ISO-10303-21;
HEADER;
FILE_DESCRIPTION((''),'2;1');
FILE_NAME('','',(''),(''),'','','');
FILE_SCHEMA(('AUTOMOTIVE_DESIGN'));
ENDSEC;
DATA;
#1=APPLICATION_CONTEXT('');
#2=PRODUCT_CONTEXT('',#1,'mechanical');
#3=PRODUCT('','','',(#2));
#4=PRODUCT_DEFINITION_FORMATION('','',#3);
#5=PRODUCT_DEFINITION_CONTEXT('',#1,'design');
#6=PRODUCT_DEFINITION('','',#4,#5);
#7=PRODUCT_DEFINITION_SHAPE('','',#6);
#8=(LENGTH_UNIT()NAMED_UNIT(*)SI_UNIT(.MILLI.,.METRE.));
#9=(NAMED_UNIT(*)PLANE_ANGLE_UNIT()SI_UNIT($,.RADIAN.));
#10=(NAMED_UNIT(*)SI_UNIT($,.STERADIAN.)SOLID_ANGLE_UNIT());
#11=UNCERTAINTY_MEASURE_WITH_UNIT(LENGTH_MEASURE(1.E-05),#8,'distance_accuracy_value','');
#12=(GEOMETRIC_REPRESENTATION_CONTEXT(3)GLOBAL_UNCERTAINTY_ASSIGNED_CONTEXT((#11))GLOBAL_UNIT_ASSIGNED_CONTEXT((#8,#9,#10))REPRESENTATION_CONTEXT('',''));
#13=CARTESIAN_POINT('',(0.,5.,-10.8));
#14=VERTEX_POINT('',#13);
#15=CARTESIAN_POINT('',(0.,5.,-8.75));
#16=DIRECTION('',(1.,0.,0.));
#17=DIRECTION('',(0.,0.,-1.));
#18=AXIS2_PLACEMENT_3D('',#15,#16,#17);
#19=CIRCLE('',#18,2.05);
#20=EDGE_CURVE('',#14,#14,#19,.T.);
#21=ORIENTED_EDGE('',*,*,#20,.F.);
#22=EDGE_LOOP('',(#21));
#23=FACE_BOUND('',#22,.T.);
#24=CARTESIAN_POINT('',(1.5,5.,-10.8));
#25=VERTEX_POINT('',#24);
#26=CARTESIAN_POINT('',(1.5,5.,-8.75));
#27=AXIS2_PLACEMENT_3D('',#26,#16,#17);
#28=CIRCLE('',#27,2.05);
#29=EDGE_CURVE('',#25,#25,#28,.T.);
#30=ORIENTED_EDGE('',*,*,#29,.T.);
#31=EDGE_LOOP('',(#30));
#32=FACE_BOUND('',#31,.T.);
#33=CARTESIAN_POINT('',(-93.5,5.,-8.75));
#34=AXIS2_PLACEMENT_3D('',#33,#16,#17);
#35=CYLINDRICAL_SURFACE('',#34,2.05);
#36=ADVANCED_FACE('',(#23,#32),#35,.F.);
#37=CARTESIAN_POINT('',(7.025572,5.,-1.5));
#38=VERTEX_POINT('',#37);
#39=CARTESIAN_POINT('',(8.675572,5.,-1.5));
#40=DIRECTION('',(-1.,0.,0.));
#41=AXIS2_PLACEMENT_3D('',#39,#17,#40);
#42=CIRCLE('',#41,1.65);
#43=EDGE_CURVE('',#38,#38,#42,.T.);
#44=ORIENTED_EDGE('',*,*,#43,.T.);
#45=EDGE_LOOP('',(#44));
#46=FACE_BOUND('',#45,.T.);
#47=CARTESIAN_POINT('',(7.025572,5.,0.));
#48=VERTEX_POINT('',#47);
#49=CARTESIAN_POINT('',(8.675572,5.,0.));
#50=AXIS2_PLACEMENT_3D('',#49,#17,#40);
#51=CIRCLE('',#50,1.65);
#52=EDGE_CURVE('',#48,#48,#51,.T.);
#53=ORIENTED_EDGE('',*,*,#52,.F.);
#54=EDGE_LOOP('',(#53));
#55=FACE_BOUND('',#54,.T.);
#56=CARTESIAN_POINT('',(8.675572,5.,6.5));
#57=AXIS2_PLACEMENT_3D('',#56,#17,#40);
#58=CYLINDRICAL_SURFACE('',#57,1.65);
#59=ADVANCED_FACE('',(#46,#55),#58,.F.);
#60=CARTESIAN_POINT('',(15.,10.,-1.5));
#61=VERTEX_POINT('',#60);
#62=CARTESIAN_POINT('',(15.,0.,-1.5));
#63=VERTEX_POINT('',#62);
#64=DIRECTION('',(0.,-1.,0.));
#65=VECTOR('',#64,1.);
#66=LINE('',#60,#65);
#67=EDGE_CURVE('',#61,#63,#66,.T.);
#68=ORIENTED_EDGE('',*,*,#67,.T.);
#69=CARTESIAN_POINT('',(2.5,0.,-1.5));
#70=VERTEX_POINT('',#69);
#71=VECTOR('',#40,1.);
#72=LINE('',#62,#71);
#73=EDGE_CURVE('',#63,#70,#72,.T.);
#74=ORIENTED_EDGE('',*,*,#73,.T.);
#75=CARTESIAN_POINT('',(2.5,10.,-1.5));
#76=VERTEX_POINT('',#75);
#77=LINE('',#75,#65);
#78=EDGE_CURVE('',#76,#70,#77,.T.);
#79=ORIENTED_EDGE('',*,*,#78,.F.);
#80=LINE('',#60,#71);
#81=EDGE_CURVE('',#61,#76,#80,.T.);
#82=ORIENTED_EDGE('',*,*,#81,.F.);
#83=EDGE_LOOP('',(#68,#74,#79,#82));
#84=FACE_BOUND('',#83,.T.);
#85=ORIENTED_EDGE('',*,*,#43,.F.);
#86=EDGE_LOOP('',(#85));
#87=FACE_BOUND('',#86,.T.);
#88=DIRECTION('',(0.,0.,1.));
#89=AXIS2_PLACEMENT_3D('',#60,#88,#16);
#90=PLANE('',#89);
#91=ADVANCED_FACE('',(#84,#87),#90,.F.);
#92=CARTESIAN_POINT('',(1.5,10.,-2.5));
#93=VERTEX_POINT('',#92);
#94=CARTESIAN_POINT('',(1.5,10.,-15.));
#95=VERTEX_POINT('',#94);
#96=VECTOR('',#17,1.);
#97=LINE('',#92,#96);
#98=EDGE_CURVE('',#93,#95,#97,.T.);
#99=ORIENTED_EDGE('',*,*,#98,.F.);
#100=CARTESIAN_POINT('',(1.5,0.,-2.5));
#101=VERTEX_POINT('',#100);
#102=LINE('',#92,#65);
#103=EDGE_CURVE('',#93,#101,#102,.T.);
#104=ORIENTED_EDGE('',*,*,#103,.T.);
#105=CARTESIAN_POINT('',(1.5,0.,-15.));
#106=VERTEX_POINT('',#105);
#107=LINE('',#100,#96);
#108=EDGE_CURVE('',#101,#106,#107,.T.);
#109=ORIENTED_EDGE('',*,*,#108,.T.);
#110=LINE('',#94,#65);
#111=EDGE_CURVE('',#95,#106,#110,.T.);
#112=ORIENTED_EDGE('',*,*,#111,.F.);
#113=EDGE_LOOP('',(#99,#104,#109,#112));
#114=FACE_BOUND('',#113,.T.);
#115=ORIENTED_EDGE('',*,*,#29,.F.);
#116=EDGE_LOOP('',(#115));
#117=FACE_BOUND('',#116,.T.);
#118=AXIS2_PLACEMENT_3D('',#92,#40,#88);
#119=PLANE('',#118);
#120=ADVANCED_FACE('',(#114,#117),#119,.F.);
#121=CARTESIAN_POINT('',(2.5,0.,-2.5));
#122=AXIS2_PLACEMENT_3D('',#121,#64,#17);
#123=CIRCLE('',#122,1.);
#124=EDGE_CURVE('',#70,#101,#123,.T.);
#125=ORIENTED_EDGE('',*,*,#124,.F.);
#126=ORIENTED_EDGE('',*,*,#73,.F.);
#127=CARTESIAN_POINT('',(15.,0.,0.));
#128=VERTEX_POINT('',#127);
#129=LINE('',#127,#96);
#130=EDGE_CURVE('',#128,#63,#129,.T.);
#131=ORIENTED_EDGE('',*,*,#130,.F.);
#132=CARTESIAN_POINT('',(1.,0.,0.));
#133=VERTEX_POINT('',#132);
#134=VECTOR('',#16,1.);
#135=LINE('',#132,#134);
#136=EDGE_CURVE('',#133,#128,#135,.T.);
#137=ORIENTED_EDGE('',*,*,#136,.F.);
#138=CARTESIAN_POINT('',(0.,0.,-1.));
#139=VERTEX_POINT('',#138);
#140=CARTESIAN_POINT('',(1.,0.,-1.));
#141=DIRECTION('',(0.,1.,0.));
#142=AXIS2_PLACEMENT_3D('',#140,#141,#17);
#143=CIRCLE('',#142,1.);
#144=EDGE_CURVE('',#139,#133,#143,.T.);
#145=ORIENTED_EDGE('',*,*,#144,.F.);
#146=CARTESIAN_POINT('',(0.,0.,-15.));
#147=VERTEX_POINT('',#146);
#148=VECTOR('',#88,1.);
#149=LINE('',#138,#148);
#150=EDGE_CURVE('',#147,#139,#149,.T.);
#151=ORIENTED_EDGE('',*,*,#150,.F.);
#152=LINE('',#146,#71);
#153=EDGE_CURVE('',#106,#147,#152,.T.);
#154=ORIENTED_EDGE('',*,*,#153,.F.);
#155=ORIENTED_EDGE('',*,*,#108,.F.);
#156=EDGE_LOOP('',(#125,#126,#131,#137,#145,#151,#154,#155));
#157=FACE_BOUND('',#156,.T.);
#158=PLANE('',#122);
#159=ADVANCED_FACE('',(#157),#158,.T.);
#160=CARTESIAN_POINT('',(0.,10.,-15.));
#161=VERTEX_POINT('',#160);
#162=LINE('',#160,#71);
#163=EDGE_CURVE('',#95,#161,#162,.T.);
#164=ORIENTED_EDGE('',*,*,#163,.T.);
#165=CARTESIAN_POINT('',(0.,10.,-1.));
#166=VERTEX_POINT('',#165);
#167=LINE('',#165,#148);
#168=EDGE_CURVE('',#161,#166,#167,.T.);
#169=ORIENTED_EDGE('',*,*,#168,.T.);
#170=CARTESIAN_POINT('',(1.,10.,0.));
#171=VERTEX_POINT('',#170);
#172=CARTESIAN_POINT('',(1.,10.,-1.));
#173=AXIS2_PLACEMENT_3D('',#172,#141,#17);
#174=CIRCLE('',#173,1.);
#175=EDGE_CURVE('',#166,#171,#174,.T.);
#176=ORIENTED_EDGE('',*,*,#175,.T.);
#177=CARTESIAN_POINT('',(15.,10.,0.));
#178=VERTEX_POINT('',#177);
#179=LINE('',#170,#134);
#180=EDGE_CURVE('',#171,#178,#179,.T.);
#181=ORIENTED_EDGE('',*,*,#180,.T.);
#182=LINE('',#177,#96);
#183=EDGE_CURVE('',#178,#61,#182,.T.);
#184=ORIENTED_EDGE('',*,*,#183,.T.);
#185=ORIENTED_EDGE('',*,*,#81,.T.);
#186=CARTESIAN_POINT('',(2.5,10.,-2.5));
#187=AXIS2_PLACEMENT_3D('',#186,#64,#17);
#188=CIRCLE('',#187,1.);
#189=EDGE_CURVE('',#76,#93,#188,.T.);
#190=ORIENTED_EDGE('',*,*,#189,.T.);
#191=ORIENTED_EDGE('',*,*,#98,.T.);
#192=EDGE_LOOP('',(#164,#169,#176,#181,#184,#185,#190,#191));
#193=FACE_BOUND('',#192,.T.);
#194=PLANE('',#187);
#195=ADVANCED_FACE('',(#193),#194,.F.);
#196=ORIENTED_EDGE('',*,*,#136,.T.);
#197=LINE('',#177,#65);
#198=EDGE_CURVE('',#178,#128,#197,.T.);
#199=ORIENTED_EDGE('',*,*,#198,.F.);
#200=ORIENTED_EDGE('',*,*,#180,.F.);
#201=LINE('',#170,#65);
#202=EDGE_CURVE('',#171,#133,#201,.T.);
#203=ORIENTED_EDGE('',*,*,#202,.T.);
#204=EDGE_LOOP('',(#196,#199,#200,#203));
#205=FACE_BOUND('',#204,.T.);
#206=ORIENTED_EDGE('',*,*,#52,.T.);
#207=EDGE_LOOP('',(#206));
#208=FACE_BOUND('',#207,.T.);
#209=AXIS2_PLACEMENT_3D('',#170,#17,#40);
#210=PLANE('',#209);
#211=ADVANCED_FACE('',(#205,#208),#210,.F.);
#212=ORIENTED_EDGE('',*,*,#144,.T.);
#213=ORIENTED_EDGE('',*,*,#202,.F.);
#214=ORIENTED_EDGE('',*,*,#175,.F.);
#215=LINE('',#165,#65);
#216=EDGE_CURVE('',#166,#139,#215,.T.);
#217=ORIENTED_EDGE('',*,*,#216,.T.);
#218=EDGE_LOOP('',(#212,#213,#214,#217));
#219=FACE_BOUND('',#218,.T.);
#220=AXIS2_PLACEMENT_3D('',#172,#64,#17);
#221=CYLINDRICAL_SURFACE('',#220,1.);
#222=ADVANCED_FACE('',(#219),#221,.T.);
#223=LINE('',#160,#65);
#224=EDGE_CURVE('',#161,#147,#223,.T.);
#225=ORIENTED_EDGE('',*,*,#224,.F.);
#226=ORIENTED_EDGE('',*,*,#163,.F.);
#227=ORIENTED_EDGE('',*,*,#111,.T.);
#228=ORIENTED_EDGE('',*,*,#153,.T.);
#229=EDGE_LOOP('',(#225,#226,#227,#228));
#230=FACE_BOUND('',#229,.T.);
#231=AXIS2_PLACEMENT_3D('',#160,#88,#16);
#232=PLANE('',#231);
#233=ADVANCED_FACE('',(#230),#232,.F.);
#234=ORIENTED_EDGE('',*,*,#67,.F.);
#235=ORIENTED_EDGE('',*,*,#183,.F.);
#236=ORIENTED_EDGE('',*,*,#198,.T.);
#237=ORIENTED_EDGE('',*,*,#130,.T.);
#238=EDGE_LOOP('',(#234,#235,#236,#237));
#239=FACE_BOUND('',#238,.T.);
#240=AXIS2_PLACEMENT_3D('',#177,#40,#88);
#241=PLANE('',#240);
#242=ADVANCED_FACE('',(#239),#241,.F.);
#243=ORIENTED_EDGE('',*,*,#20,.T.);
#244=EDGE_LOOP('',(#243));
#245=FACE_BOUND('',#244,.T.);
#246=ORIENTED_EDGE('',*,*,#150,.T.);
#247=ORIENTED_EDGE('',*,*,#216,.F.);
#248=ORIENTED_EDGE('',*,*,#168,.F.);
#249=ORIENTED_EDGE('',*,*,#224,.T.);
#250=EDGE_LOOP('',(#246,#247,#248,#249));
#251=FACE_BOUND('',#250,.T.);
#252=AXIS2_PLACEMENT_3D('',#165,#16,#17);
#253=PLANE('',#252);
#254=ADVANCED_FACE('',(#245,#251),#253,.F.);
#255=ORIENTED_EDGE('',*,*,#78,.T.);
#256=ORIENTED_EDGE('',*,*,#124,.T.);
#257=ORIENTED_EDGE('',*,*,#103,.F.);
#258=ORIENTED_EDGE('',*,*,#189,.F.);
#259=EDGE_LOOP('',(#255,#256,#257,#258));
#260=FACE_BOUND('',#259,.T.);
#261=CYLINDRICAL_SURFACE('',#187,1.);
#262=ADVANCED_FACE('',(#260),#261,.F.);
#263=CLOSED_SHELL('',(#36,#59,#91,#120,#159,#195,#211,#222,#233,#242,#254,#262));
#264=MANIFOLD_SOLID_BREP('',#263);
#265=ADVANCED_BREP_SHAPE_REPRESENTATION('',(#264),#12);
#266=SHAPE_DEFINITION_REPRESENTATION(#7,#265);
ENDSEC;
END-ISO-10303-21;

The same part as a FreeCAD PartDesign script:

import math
import FreeCAD as App
import Part
import Sketcher
from FreeCAD import Vector
Q = App.Units.Quantity

doc = App.newDocument("Part")
body = doc.addObject("PartDesign::Body", "Body")

# Sketch on XZ plane
sketch1 = body.newObject("Sketcher::SketchObject", "Sketch")
sketch1.AttachmentSupport = (doc.getObject("XZ_Plane"), [""])
sketch1.MapMode = "FlatFace"
sketch1.addGeometry([
    Part.LineSegment(Vector(0, -15, 0), Vector(0, -1, 0)),  # 0
    Part.ArcOfCircle(Part.Circle(Vector(1, -1, 0), Vector(0, 0, 1), 1), math.radians(90), math.radians(180)),  # 1
    Part.LineSegment(Vector(1, 0, 0), Vector(15, 0, 0)),  # 2
    Part.LineSegment(Vector(15, 0, 0), Vector(15, -1.5, 0)),  # 3
    Part.LineSegment(Vector(15, -1.5, 0), Vector(2.5, -1.5, 0)),  # 4
    Part.ArcOfCircle(Part.Circle(Vector(2.5, -2.5, 0), Vector(0, 0, 1), 1), math.radians(90), math.radians(180)),  # 5
    Part.LineSegment(Vector(1.5, -2.5, 0), Vector(1.5, -15, 0)),  # 6
    Part.LineSegment(Vector(1.5, -15, 0), Vector(0, -15, 0)),  # 7
], False)
sketch1.addConstraint([
    Sketcher.Constraint("Tangent", 0, 2, 1, 2),
    Sketcher.Constraint("Tangent", 1, 1, 2, 1),
    Sketcher.Constraint("Coincident", 2, 2, 3, 1),
    Sketcher.Constraint("Coincident", 3, 2, 4, 1),
    Sketcher.Constraint("Tangent", 4, 2, 5, 1),
    Sketcher.Constraint("Tangent", 5, 2, 6, 1),
    Sketcher.Constraint("Coincident", 6, 2, 7, 1),
    Sketcher.Constraint("Coincident", 7, 2, 0, 1),
    Sketcher.Constraint("Vertical", 0),
    Sketcher.Constraint("Horizontal", 2),
    Sketcher.Constraint("Vertical", 3),
    Sketcher.Constraint("Horizontal", 4),
    Sketcher.Constraint("Vertical", 6),
    Sketcher.Constraint("Horizontal", 7),
    Sketcher.Constraint("Equal", 1, 5),
    Sketcher.Constraint("PointOnObject", 0, 2, -2),
    Sketcher.Constraint("PointOnObject", 1, 1, -1),
    Sketcher.Constraint("Equal", 2, 0),
    Sketcher.Constraint("Equal", 7, 3),
    Sketcher.Constraint("Radius", 1, Q("1 mm")),
    Sketcher.Constraint("DistanceX", 2, 1, 2, 2, Q("14 mm")),
    Sketcher.Constraint("DistanceX", 4, 2, 4, 1, Q("12.5 mm")),
])
pad1 = body.newObject("PartDesign::Pad", "Pad")
pad1.Profile = sketch1
pad1.Length = 10
pad1.Reversed = True

# Sketch on XY plane
sketch2 = body.newObject("Sketcher::SketchObject", "Sketch001")
sketch2.AttachmentSupport = (doc.getObject("XY_Plane"), [""])
sketch2.MapMode = "FlatFace"
sketch2.AttachmentOffset = App.Placement(Vector(0, 0, -1.5), App.Rotation())
sketch2.addGeometry([
    Part.ArcOfCircle(Part.Circle(Vector(8.7, 5, 0), Vector(0, 0, 1), 1.6), math.radians(89), math.radians(179)),
    Part.ArcOfCircle(Part.Circle(Vector(8.7, 5, 0), Vector(0, 0, 1), 1.6), math.radians(-91), math.radians(89)),
    Part.ArcOfCircle(Part.Circle(Vector(8.7, 5, 0), Vector(0, 0, 1), 1.6), math.radians(179), math.radians(269)),
], False)
sketch2.addConstraint([
    Sketcher.Constraint("Tangent", 0, 1, 1, 2),
    Sketcher.Constraint("Tangent", 1, 1, 2, 2),
    Sketcher.Constraint("Tangent", 2, 1, 0, 2),
    Sketcher.Constraint("Radius", 0, Q("1.65 mm")),
    Sketcher.Constraint("DistanceY", -1, 1, 0, 3, Q("5 mm")),
    Sketcher.Constraint("DistanceX", -1, 1, 0, 3, Q("8.675572 mm")),
    Sketcher.Constraint("DistanceX", -1, 1, 0, 1, Q("8.70013 mm")),
    Sketcher.Constraint("DistanceY", -1, 1, 2, 1, Q("5.024559 mm")),
    Sketcher.Constraint("DistanceX", 1, 1, 0, 3, Q("0.024559 mm")),
])
pocket1 = body.newObject("PartDesign::Pocket", "Pocket")
pocket1.Profile = sketch2
pocket1.Length = 8
pocket1.Reversed = True

# Sketch on YZ plane
sketch3 = body.newObject("Sketcher::SketchObject", "Sketch002")
sketch3.AttachmentSupport = (doc.getObject("YZ_Plane"), [""])
sketch3.MapMode = "FlatFace"
sketch3.AttachmentOffset = App.Placement(Vector(0, 0, 1.5), App.Rotation())
sketch3.addGeometry(Part.Circle(Vector(5, -8.8, 0), Vector(0, 0, 1), 2), False)
sketch3.addConstraint([
    Sketcher.Constraint("Diameter", 0, Q("4.1 mm")),
    Sketcher.Constraint("DistanceX", -1, 1, 0, 3, Q("5 mm")),
    Sketcher.Constraint("DistanceY", 0, 3, -1, 1, Q("8.75 mm")),
])
pocket2 = body.newObject("PartDesign::Pocket", "Pocket001")
pocket2.Profile = sketch3
pocket2.Length = 95

doc.recompute()
